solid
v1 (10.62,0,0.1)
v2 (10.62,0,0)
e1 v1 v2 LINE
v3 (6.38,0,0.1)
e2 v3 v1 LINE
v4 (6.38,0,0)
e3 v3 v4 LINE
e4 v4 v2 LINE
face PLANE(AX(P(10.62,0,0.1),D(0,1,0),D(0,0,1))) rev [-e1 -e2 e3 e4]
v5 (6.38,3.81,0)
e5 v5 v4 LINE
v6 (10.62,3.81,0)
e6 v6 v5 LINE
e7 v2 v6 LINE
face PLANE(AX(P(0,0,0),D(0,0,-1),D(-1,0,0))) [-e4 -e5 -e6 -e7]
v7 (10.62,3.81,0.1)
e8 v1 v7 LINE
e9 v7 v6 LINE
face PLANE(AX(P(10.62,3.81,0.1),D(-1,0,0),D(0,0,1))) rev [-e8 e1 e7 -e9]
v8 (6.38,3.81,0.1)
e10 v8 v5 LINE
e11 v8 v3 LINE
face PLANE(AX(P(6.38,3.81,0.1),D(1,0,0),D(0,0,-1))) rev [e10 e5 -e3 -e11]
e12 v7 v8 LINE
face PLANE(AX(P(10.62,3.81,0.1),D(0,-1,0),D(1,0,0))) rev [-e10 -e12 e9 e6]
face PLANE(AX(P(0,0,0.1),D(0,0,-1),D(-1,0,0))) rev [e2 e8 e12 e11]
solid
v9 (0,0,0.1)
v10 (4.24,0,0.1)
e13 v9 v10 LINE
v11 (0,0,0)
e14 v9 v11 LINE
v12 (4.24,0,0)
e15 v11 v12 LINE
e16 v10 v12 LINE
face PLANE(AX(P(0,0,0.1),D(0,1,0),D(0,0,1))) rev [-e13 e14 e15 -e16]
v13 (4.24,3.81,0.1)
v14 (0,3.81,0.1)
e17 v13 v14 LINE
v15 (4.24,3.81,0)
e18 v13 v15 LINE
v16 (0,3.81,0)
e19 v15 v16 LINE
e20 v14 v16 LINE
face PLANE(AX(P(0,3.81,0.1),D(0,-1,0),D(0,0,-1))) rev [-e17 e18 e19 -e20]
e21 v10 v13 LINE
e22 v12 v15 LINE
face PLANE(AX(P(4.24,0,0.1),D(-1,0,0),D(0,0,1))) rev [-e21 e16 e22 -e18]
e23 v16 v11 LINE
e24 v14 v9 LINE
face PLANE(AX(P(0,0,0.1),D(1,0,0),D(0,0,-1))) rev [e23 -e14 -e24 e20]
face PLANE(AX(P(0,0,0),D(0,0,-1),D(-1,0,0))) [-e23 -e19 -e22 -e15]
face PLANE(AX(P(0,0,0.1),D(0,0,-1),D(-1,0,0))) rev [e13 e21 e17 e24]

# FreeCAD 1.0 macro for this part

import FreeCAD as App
import Part
import Sketcher

doc = App.newDocument("Part")
body = doc.addObject("PartDesign::Body", "Body")

# Sketch on XY plane
sketch1 = body.newObject("Sketcher::SketchObject", "Sketch")
sketch1.AttachmentSupport = (doc.getObject("XY_Plane"), [""])
sketch1.MapMode = "FlatFace"
sketch1.addGeometry(Part.LineSegment(App.Vector(0, 3.8, 0), App.Vector(0, 0, 0)), False)
sketch1.addGeometry(Part.LineSegment(App.Vector(0, 0, 0), App.Vector(4.2, 0, 0)), False)
sketch1.addGeometry(Part.LineSegment(App.Vector(4.2, 0, 0), App.Vector(4.2, 3.8, 0)), False)
sketch1.addGeometry(Part.LineSegment(App.Vector(4.2, 3.8, 0), App.Vector(0, 3.8, 0)), False)
sketch1.addConstraint(Sketcher.Constraint("Coincident", 0, 2, 1, 1))
sketch1.addConstraint(Sketcher.Constraint("Coincident", 1, 2, 2, 1))
sketch1.addConstraint(Sketcher.Constraint("Coincident", 2, 2, 3, 1))
sketch1.addConstraint(Sketcher.Constraint("Coincident", 3, 2, 0, 1))
sketch1.addConstraint(Sketcher.Constraint("Vertical", 0))
sketch1.addConstraint(Sketcher.Constraint("Horizontal", 1))
sketch1.addConstraint(Sketcher.Constraint("Vertical", 2))
sketch1.addConstraint(Sketcher.Constraint("Horizontal", 3))
sketch1.addConstraint(Sketcher.Constraint("Coincident", 0, 2, -1, 1))
sketch1.addConstraint(Sketcher.Constraint("DistanceX", 1, 1, 1, 2, 4.24))
sketch1.addConstraint(Sketcher.Constraint("DistanceY", 0, 2, 0, 1, 3.81))
pad1 = body.newObject("PartDesign::Pad", "Pad")
pad1.Profile = sketch1
pad1.Length = 0.1
body2 = doc.addObject("PartDesign::Body", "Body001")

# Sketch on XY plane
sketch2 = body2.newObject("Sketcher::SketchObject", "Sketch001")
sketch2.AttachmentSupport = (doc.getObject("XY_Plane001"), [""])
sketch2.MapMode = "FlatFace"
sketch2.addGeometry(Part.LineSegment(App.Vector(6.4, 3.8, 0), App.Vector(6.4, 0, 0)), False)
sketch2.addGeometry(Part.LineSegment(App.Vector(6.4, 0, 0), App.Vector(10.6, 0, 0)), False)
sketch2.addGeometry(Part.LineSegment(App.Vector(10.6, 0, 0), App.Vector(10.6, 3.8, 0)), False)
sketch2.addGeometry(Part.LineSegment(App.Vector(10.6, 3.8, 0), App.Vector(6.4, 3.8, 0)), False)
sketch2.addConstraint(Sketcher.Constraint("Coincident", 0, 2, 1, 1))
sketch2.addConstraint(Sketcher.Constraint("Coincident", 1, 2, 2, 1))
sketch2.addConstraint(Sketcher.Constraint("Coincident", 2, 2, 3, 1))
sketch2.addConstraint(Sketcher.Constraint("Coincident", 3, 2, 0, 1))
sketch2.addConstraint(Sketcher.Constraint("Vertical", 0))
sketch2.addConstraint(Sketcher.Constraint("Horizontal", 1))
sketch2.addConstraint(Sketcher.Constraint("Vertical", 2))
sketch2.addConstraint(Sketcher.Constraint("Horizontal", 3))
sketch2.addConstraint(Sketcher.Constraint("PointOnObject", 0, 2, -1))
sketch2.addConstraint(Sketcher.Constraint("DistanceX", 1, 1, 1, 2, 4.24))
sketch2.addConstraint(Sketcher.Constraint("DistanceY", 0, 2, 0, 1, 3.81))
sketch2.addConstraint(Sketcher.Constraint("DistanceX", -1, 1, 0, 2, 6.38))
pad2 = body2.newObject("PartDesign::Pad", "Pad001")
pad2.Profile = sketch2
pad2.Length = 0.1

doc.recompute()
